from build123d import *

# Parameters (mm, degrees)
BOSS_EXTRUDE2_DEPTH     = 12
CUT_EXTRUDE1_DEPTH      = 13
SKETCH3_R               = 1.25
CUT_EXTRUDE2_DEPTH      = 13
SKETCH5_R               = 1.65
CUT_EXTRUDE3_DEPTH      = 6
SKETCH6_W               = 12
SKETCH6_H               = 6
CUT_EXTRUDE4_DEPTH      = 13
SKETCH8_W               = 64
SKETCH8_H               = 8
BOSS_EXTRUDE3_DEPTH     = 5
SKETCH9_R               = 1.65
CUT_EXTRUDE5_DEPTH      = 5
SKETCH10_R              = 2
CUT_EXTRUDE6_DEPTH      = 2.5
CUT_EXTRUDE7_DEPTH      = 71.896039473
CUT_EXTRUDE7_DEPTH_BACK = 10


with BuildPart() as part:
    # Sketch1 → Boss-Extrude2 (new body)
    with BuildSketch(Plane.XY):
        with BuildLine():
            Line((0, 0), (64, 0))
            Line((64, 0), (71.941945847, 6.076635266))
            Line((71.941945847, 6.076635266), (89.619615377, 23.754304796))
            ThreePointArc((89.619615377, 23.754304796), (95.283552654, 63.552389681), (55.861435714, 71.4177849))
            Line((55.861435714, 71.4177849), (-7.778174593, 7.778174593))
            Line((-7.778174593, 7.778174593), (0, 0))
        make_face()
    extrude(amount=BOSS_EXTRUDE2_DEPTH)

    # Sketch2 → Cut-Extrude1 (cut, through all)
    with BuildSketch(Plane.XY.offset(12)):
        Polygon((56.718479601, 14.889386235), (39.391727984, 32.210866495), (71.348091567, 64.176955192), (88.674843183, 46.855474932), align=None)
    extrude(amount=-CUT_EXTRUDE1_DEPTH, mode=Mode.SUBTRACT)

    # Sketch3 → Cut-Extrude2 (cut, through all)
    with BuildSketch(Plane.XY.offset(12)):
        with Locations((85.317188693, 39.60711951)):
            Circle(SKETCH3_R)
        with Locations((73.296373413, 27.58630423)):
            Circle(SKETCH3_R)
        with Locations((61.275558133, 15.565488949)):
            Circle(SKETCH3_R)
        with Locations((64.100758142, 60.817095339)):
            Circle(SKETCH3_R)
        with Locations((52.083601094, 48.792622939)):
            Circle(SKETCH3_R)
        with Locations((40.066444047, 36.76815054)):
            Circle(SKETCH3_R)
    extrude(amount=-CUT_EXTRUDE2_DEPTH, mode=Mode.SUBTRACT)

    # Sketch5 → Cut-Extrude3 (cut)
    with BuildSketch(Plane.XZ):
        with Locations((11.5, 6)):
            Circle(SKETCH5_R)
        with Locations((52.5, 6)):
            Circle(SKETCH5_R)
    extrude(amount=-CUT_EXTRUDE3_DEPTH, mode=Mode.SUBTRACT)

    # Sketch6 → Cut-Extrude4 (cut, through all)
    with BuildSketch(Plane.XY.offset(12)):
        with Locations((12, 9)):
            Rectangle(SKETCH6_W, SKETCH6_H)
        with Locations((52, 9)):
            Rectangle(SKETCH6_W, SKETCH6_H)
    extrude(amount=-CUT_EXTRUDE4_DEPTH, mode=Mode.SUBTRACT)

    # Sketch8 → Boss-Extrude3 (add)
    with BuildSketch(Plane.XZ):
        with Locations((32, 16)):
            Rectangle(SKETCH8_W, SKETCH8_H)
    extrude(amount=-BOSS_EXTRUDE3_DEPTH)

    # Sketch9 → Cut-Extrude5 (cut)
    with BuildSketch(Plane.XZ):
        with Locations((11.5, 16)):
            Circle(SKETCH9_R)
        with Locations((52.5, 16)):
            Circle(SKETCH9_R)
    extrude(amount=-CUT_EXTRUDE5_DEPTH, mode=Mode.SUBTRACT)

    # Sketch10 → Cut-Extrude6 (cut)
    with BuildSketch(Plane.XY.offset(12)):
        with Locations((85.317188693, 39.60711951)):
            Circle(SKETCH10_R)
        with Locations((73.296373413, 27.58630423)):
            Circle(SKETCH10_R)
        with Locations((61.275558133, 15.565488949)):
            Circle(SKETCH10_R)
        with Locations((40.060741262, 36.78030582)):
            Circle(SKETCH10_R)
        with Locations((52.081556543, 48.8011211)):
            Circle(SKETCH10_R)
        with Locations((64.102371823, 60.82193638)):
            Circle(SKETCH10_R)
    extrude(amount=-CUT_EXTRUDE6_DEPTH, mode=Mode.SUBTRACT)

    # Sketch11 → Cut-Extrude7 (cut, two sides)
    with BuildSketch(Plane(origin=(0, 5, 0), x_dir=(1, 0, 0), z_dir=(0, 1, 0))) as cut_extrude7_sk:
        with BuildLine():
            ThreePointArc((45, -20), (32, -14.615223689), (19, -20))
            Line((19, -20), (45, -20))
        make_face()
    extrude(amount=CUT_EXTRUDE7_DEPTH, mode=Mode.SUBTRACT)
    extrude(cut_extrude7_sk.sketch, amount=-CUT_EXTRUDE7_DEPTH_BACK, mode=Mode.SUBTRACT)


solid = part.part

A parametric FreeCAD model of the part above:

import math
import FreeCAD as App
import Part
import Sketcher
from FreeCAD import Vector
Q = App.Units.Quantity

doc = App.newDocument("Part")
body = doc.addObject("PartDesign::Body", "Body")

sketch1 = body.newObject("Sketcher::SketchObject", "Sketch")
sketch1.AttachmentSupport = (doc.getObject("XY_Plane"), [""])
sketch1.MapMode = "FlatFace"
sketch1.addGeometry([
    Part.LineSegment(Vector(0, 0, 0), Vector(64, 0, 0)),
    Part.LineSegment(Vector(64, 0, 0), Vector(72, 6, 0)),
    Part.LineSegment(Vector(72, 6, 0), Vector(90, 24, 0)),
    Part.ArcOfCircle(Part.Circle(Vector(71, 47, 0), Vector(0, 0, 1), 29), math.radians(-52), math.radians(122)),
    Part.LineSegment(Vector(56, 71, 0), Vector(-8, 8, 0)),
    Part.LineSegment(Vector(-8, 8, 0), Vector(0, 0, 0)),
], False)
sketch1.addConstraint([
    Sketcher.Constraint("Coincident", 0, 2, 1, 1),
    Sketcher.Constraint("Coincident", 1, 2, 2, 1),
    Sketcher.Constraint("Coincident", 2, 2, 3, 1),
    Sketcher.Constraint("Coincident", 3, 2, 4, 1),
    Sketcher.Constraint("Coincident", 4, 2, 5, 1),
    Sketcher.Constraint("Coincident", 5, 2, 0, 1),
    Sketcher.Constraint("Horizontal", 0),
    Sketcher.Constraint("Coincident", 5, 2, -1, 1),
    Sketcher.Constraint("Parallel", 2, 4),
    Sketcher.Constraint("Perpendicular", 4, 5),
    Sketcher.Constraint("DistanceX", 0, 1, 0, 2, Q("64 mm")),
    Sketcher.Constraint("Angle", 2, Q("45 deg")),
    Sketcher.Constraint("Distance", 1, Q("10 mm")),
    Sketcher.Constraint("Distance", 2, Q("25 mm")),
    Sketcher.Constraint("Distance", 4, Q("90 mm")),
    Sketcher.Constraint("Distance", 5, Q("11 mm")),
    Sketcher.Constraint("Radius", 3, Q("29.248829 mm")),
    Sketcher.Constraint("DistanceY", -1, 1, 3, 3, Q("46.64721 mm")),
])
pad1 = body.newObject("PartDesign::Pad", "Pad")
pad1.Profile = sketch1
pad1.Length = 12

sketch2 = body.newObject("Sketcher::SketchObject", "Sketch001")
sketch2.AttachmentSupport = (doc.getObject("XY_Plane"), [""])
sketch2.MapMode = "FlatFace"
sketch2.AttachmentOffset = App.Placement(Vector(0, 0, 12), App.Rotation())
sketch2.addGeometry([
    Part.LineSegment(Vector(39, 32, 0), Vector(57, 15, 0)),
    Part.LineSegment(Vector(57, 15, 0), Vector(89, 47, 0)),
    Part.LineSegment(Vector(89, 47, 0), Vector(71, 64, 0)),
    Part.LineSegment(Vector(71, 64, 0), Vector(39, 32, 0)),
], False)
sketch2.addConstraint([
    Sketcher.Constraint("Coincident", 0, 2, 1, 1),
    Sketcher.Constraint("Coincident", 1, 2, 2, 1),
    Sketcher.Constraint("Coincident", 2, 2, 3, 1),
    Sketcher.Constraint("Coincident", 3, 2, 0, 1),
    Sketcher.Constraint("Perpendicular", 0, 1),
    Sketcher.Constraint("Perpendicular", 1, 2),
    Sketcher.Constraint("Perpendicular", 2, 3),
    Sketcher.Constraint("Distance", 0, Q("24.5 mm")),
    Sketcher.Constraint("Distance", 1, Q("45.2 mm")),
    Sketcher.Constraint("DistanceX", -1, 1, 0, 2, Q("56.71848 mm")),
    Sketcher.Constraint("DistanceX", -1, 1, 2, 2, Q("71.348092 mm")),
    Sketcher.Constraint("DistanceY", -1, 1, 0, 2, Q("14.889386 mm")),
])
pocket1 = body.newObject("PartDesign::Pocket", "Pocket")
pocket1.Profile = sketch2
pocket1.Type = "ThroughAll"

sketch3 = body.newObject("Sketcher::SketchObject", "Sketch002")
sketch3.AttachmentSupport = (doc.getObject("XY_Plane"), [""])
sketch3.MapMode = "FlatFace"
sketch3.AttachmentOffset = App.Placement(Vector(0, 0, 12), App.Rotation())
sketch3.addGeometry([
    Part.Circle(Vector(85.3, 39.6, 0), Vector(0, 0, 1), 1.2),
    Part.Circle(Vector(73.3, 27.6, 0), Vector(0, 0, 1), 1.2),
    Part.Circle(Vector(61.3, 15.6, 0), Vector(0, 0, 1), 1.2),
    Part.Circle(Vector(64.1, 60.8, 0), Vector(0, 0, 1), 1.2),
    Part.Circle(Vector(52.1, 48.8, 0), Vector(0, 0, 1), 1.2),
    Part.Circle(Vector(40.1, 36.8, 0), Vector(0, 0, 1), 1.2),
], False)
sketch3.addConstraint([
    Sketcher.Constraint("Equal", 0, 1),
    Sketcher.Constraint("Equal", 1, 2),
    Sketcher.Constraint("Equal", 2, 3),
    Sketcher.Constraint("Equal", 3, 4),
    Sketcher.Constraint("Equal", 4, 5),
    Sketcher.Constraint("Diameter", 0, Q("2.5 mm")),
    Sketcher.Constraint("DistanceX", -1, 1, 4, 3, Q("52.083601 mm")),
    Sketcher.Constraint("DistanceX", 2, 3, 3, 3, Q("2.8252 mm")),
    Sketcher.Constraint("DistanceX", -1, 1, 0, 3, Q("85.317189 mm")),
    Sketcher.Constraint("DistanceY", -1, 1, 0, 3, Q("39.60712 mm")),
    Sketcher.Constraint("DistanceX", -1, 1, 2, 3, Q("61.275558 mm")),
    Sketcher.Constraint("DistanceY", -1, 1, 2, 3, Q("15.565489 mm")),
    Sketcher.Constraint("DistanceY", -1, 1, 5, 3, Q("36.768151 mm")),
    Sketcher.Constraint("DistanceY", 1, 3, 3, 3, Q("33.230791 mm")),
    Sketcher.Constraint("DistanceY", 1, 3, 4, 3, Q("21.206319 mm")),
    Sketcher.Constraint("DistanceX", 5, 3, 1, 3, Q("33.229929 mm")),
    Sketcher.Constraint("DistanceX", -1, 1, 1, 3, Q("73.296373 mm")),
    Sketcher.Constraint("DistanceY", -1, 1, 1, 3, Q("27.586304 mm")),
])
pocket2 = body.newObject("PartDesign::Pocket", "Pocket001")
pocket2.Profile = sketch3
pocket2.Type = "ThroughAll"

sketch4 = body.newObject("Sketcher::SketchObject", "Sketch003")
sketch4.AttachmentSupport = (doc.getObject("XZ_Plane"), [""])
sketch4.MapMode = "FlatFace"
sketch4.addGeometry([
    Part.Circle(Vector(11.5, 6, 0), Vector(0, 0, 1), 1.6),
    Part.Circle(Vector(52.5, 6, 0), Vector(0, 0, 1), 1.6),
], False)
sketch4.addConstraint([
    Sketcher.Constraint("Equal", 0, 1),
    Sketcher.Constraint("Horizontal", 0, 3, 1, 3),
    Sketcher.Constraint("Diameter", 0, Q("3.3 mm")),
    Sketcher.Constraint("DistanceY", -1, 1, 0, 3, Q("6 mm")),
    Sketcher.Constraint("DistanceX", 0, 3, 1, 3, Q("41 mm")),
    Sketcher.Constraint("DistanceX", -1, 1, 0, 3, Q("11.5 mm")),
])
pocket3 = body.newObject("PartDesign::Pocket", "Pocket002")
pocket3.Profile = sketch4
pocket3.Length = 6

sketch5 = body.newObject("Sketcher::SketchObject", "Sketch004")
sketch5.AttachmentSupport = (doc.getObject("XY_Plane"), [""])
sketch5.MapMode = "FlatFace"
sketch5.AttachmentOffset = App.Placement(Vector(0, 0, 12), App.Rotation())
sketch5.addGeometry([
    Part.LineSegment(Vector(6, 12, 0), Vector(6, 6, 0)),
    Part.LineSegment(Vector(6, 6, 0), Vector(18, 6, 0)),
    Part.LineSegment(Vector(18, 6, 0), Vector(18, 12, 0)),
    Part.LineSegment(Vector(18, 12, 0), Vector(6, 12, 0)),
    Part.LineSegment(Vector(46, 12, 0), Vector(46, 6, 0)),
    Part.LineSegment(Vector(46, 6, 0), Vector(58, 6, 0)),
    Part.LineSegment(Vector(58, 6, 0), Vector(58, 12, 0)),
    Part.LineSegment(Vector(58, 12, 0), Vector(46, 12, 0)),
], False)
sketch5.addConstraint([
    Sketcher.Constraint("Coincident", 0, 2, 1, 1),
    Sketcher.Constraint("Coincident", 1, 2, 2, 1),
    Sketcher.Constraint("Coincident", 2, 2, 3, 1),
    Sketcher.Constraint("Coincident", 3, 2, 0, 1),
    Sketcher.Constraint("Coincident", 4, 2, 5, 1),
    Sketcher.Constraint("Coincident", 5, 2, 6, 1),
    Sketcher.Constraint("Coincident", 6, 2, 7, 1),
    Sketcher.Constraint("Coincident", 7, 2, 4, 1),
    Sketcher.Constraint("Vertical", 0),
    Sketcher.Constraint("Horizontal", 1),
    Sketcher.Constraint("Vertical", 2),
    Sketcher.Constraint("Horizontal", 3),
    Sketcher.Constraint("Vertical", 4),
    Sketcher.Constraint("Horizontal", 5),
    Sketcher.Constraint("Vertical", 6),
    Sketcher.Constraint("Horizontal", 7),
    Sketcher.Constraint("Horizontal", 1, 2, 4, 2),
    Sketcher.Constraint("Horizontal", 3, 2, 6, 2),
    Sketcher.Constraint("Equal", 3, 5),
    Sketcher.Constraint("DistanceX", 1, 1, 1, 2, Q("12 mm")),
    Sketcher.Constraint("DistanceY", 0, 2, 0, 1, Q("6 mm")),
    Sketcher.Constraint("DistanceX", -1, 1, 0, 2, Q("6 mm")),
    Sketcher.Constraint("DistanceY", -1, 1, 0, 2, Q("6 mm")),
    Sketcher.Constraint("DistanceX", -1, 1, 4, 2, Q("46 mm")),
])
pocket4 = body.newObject("PartDesign::Pocket", "Pocket003")
pocket4.Profile = sketch5
pocket4.Type = "ThroughAll"

sketch6 = body.newObject("Sketcher::SketchObject", "Sketch005")
sketch6.AttachmentSupport = (doc.getObject("XZ_Plane"), [""])
sketch6.MapMode = "FlatFace"
sketch6.addGeometry([
    Part.LineSegment(Vector(0, 20, 0), Vector(0, 12, 0)),
    Part.LineSegment(Vector(0, 12, 0), Vector(64, 12, 0)),
    Part.LineSegment(Vector(64, 12, 0), Vector(64, 20, 0)),
    Part.LineSegment(Vector(64, 20, 0), Vector(0, 20, 0)),
], False)
sketch6.addConstraint([
    Sketcher.Constraint("Coincident", 0, 2, 1, 1),
    Sketcher.Constraint("Coincident", 1, 2, 2, 1),
    Sketcher.Constraint("Coincident", 2, 2, 3, 1),
    Sketcher.Constraint("Coincident", 3, 2, 0, 1),
    Sketcher.Constraint("Vertical", 0),
    Sketcher.Constraint("Horizontal", 1),
    Sketcher.Constraint("Vertical", 2),
    Sketcher.Constraint("Horizontal", 3),
    Sketcher.Constraint("PointOnObject", 0, 2, -2),
    Sketcher.Constraint("DistanceX", 1, 1, 1, 2, Q("64 mm")),
    Sketcher.Constraint("DistanceY", 0, 2, 0, 1, Q("8 mm")),
    Sketcher.Constraint("DistanceY", -1, 1, 0, 2, Q("12 mm")),
])
pad2 = body.newObject("PartDesign::Pad", "Pad001")
pad2.Profile = sketch6
pad2.Length = 5
pad2.Reversed = True

sketch7 = body.newObject("Sketcher::SketchObject", "Sketch006")
sketch7.AttachmentSupport = (doc.getObject("XZ_Plane"), [""])
sketch7.MapMode = "FlatFace"
sketch7.addGeometry([
    Part.Circle(Vector(11.5, 16, 0), Vector(0, 0, 1), 1.6),
    Part.Circle(Vector(52.5, 16, 0), Vector(0, 0, 1), 1.6),
], False)
sketch7.addConstraint([
    Sketcher.Constraint("Equal", 0, 1),
    Sketcher.Constraint("Horizontal", 0, 3, 1, 3),
    Sketcher.Constraint("Diameter", 0, Q("3.3 mm")),
    Sketcher.Constraint("DistanceY", -1, 1, 0, 3, Q("16 mm")),
    Sketcher.Constraint("DistanceX", 0, 3, 1, 3, Q("41 mm")),
    Sketcher.Constraint("DistanceX", -1, 1, 0, 3, Q("11.5 mm")),
])
pocket5 = body.newObject("PartDesign::Pocket", "Pocket004")
pocket5.Profile = sketch7
pocket5.Length = 5

sketch8 = body.newObject("Sketcher::SketchObject", "Sketch007")
sketch8.AttachmentSupport = (doc.getObject("XY_Plane"), [""])
sketch8.MapMode = "FlatFace"
sketch8.AttachmentOffset = App.Placement(Vector(0, 0, 12), App.Rotation())
sketch8.addGeometry([
    Part.Circle(Vector(85.3, 39.6, 0), Vector(0, 0, 1), 2),
    Part.Circle(Vector(73.3, 27.6, 0), Vector(0, 0, 1), 2),
    Part.Circle(Vector(61.3, 15.6, 0), Vector(0, 0, 1), 2),
    Part.Circle(Vector(40.1, 36.8, 0), Vector(0, 0, 1), 2),
    Part.Circle(Vector(52.1, 48.8, 0), Vector(0, 0, 1), 2),
    Part.Circle(Vector(64.1, 60.8, 0), Vector(0, 0, 1), 2),
], False)
sketch8.addConstraint([
    Sketcher.Constraint("Equal", 0, 1),
    Sketcher.Constraint("Equal", 1, 2),
    Sketcher.Constraint("Equal", 2, 3),
    Sketcher.Constraint("Equal", 3, 4),
    Sketcher.Constraint("Equal", 4, 5),
    Sketcher.Constraint("Diameter", 0, Q("4 mm")),
    Sketcher.Constraint("DistanceY", 1, 3, 3, 3, Q("9.194002 mm")),
    Sketcher.Constraint("DistanceY", 0, 3, 4, 3, Q("9.194002 mm")),
    Sketcher.Constraint("DistanceX", 4, 3, 2, 3, Q("9.194002 mm")),
    Sketcher.Constraint("DistanceX", 5, 3, 1, 3, Q("9.194002 mm")),
    Sketcher.Constraint("DistanceX", -1, 1, 0, 3, Q("85.317189 mm")),
    Sketcher.Constraint("DistanceY", -1, 1, 0, 3, Q("39.60712 mm")),
    Sketcher.Constraint("DistanceX", -1, 1, 2, 3, Q("61.275558 mm")),
    Sketcher.Constraint("DistanceY", -1, 1, 2, 3, Q("15.565489 mm")),
    Sketcher.Constraint("DistanceX", -1, 1, 3, 3, Q("40.060741 mm")),
    Sketcher.Constraint("DistanceX", -1, 1, 5, 3, Q("64.102372 mm")),
    Sketcher.Constraint("DistanceY", 3, 3, 5, 3, Q("24.041631 mm")),
    Sketcher.Constraint("DistanceY", -1, 1, 1, 3, Q("27.586304 mm")),
])
pocket6 = body.newObject("PartDesign::Pocket", "Pocket005")
pocket6.Profile = sketch8
pocket6.Length = 2.5

sketch9 = body.newObject("Sketcher::SketchObject", "Sketch008")
sketch9.AttachmentSupport = (doc.getObject("XZ_Plane"), [""])
sketch9.MapMode = "FlatFace"
sketch9.AttachmentOffset = App.Placement(Vector(0, 0, -5), App.Rotation())
sketch9.addGeometry([
    Part.ArcOfCircle(Part.Circle(Vector(32, 33, 0), Vector(0, 0, 1), 18), math.radians(-135), math.radians(-45)),
    Part.LineSegment(Vector(19, 20, 0), Vector(45, 20, 0)),
], False)
sketch9.addConstraint([
    Sketcher.Constraint("Coincident", 0, 1, 1, 1),
    Sketcher.Constraint("Coincident", 1, 2, 0, 2),
    Sketcher.Constraint("Horizontal", 1),
    Sketcher.Constraint("DistanceX", 1, 1, 1, 2, Q("26 mm")),
    Sketcher.Constraint("DistanceX", -1, 1, 0, 3, Q("32 mm")),
    Sketcher.Constraint("DistanceY", -1, 1, 0, 3, Q("33 mm")),
    Sketcher.Constraint("DistanceY", -1, 1, 0, 1, Q("20 mm")),
])
pocket7 = body.newObject("PartDesign::Pocket", "Pocket006")
pocket7.Profile = sketch9
pocket7.Type = "ThroughAll"
pocket7.Midplane = True

doc.recompute()
